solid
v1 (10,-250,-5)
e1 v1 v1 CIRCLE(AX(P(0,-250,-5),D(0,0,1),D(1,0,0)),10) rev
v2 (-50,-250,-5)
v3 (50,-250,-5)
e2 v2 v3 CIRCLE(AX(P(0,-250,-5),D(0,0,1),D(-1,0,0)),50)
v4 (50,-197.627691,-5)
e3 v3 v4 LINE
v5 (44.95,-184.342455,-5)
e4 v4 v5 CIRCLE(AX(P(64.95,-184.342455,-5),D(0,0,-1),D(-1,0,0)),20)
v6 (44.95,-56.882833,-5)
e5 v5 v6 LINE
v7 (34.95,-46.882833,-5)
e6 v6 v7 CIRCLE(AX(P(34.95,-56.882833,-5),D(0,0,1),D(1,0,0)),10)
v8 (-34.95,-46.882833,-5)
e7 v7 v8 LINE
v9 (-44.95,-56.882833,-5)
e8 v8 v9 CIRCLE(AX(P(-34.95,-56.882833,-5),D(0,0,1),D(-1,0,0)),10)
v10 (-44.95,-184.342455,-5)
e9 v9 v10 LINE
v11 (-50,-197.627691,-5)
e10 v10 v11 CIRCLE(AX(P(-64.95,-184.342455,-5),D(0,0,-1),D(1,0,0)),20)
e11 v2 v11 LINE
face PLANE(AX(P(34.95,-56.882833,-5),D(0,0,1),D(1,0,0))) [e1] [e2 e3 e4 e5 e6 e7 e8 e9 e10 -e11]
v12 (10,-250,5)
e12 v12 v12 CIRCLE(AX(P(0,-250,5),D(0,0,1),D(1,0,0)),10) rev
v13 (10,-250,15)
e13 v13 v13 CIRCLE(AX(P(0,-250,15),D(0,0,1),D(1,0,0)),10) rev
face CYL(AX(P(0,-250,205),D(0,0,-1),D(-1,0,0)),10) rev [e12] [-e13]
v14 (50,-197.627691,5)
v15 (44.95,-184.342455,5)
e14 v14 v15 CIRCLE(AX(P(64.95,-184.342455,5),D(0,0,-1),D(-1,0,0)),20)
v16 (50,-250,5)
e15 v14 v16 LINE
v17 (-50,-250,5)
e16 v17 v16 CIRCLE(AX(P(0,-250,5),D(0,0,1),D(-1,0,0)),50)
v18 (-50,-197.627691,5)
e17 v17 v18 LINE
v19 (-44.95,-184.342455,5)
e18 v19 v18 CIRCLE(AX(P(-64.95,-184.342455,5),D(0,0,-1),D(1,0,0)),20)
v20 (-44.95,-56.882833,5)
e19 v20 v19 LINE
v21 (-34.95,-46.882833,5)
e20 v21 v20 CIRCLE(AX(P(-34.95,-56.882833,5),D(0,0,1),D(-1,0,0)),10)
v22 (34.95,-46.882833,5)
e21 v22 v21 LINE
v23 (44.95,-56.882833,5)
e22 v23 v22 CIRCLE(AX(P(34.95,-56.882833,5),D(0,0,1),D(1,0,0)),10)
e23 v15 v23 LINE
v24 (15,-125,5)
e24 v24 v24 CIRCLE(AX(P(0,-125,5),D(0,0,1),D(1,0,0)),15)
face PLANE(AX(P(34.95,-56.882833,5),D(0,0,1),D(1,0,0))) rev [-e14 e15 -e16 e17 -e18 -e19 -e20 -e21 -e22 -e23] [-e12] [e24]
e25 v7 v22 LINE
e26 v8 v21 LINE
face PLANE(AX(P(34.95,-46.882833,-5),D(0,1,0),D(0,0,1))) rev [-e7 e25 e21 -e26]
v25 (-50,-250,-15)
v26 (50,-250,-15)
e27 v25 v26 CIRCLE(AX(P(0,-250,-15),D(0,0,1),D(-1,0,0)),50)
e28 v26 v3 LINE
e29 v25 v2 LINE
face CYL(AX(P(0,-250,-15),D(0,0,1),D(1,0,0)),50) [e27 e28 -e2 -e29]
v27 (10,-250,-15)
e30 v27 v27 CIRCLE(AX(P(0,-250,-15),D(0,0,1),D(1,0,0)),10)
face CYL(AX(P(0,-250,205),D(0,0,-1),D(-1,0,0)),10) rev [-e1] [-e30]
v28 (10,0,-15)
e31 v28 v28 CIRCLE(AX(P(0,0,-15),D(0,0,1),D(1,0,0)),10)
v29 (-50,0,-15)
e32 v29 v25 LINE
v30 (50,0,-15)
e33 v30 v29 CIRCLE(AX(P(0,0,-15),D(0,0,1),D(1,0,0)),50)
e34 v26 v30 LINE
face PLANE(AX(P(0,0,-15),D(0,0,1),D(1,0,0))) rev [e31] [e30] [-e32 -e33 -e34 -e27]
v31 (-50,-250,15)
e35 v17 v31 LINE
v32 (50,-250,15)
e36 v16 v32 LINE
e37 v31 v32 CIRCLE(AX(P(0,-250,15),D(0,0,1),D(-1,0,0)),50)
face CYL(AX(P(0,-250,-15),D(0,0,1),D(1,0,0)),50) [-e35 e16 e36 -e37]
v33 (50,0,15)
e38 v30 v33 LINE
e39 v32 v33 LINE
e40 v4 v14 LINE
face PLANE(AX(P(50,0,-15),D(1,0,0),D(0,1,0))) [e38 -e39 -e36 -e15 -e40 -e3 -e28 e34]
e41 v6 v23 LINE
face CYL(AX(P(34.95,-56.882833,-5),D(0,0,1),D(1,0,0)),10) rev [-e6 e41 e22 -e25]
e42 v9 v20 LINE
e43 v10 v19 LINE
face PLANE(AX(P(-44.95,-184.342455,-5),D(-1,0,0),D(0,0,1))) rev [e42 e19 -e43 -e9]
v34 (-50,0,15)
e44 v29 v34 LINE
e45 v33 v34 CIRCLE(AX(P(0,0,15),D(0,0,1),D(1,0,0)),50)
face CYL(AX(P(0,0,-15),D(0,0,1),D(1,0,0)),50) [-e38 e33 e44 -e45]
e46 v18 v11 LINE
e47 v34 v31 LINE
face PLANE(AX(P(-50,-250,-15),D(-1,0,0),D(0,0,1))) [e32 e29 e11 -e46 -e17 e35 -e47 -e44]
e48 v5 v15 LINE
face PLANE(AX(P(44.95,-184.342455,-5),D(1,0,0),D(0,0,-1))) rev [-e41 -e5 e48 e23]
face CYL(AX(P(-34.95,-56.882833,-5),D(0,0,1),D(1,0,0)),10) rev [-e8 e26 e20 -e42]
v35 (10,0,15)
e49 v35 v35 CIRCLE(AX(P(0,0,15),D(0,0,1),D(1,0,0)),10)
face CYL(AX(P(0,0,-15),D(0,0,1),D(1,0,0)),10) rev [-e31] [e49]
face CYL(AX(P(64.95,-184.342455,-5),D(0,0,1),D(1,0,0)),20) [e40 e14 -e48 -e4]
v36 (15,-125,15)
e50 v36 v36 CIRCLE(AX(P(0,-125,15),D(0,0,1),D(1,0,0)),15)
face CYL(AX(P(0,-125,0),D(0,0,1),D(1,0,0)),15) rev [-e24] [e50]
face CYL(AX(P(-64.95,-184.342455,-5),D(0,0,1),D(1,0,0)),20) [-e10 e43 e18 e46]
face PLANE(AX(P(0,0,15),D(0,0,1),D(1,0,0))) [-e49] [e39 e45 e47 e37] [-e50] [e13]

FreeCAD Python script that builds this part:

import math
import FreeCAD as App
import Part
import Sketcher
from FreeCAD import Vector
Q = App.Units.Quantity

doc = App.newDocument("Part")
body = doc.addObject("PartDesign::Body", "Body")

sketch1 = body.newObject("Sketcher::SketchObject", "Sketch")
sketch1.AttachmentSupport = (doc.getObject("XY_Plane"), [""])
sketch1.MapMode = "FlatFace"
sketch1.addGeometry([
    Part.LineSegment(Vector(50, -250, 0), Vector(50, 0, 0)),
    Part.ArcOfCircle(Part.Circle(Vector(0, 0, 0), Vector(0, 0, 1), 50), math.radians(0), math.radians(180)),
    Part.LineSegment(Vector(-50, 0, 0), Vector(-50, -250, 0)),
    Part.ArcOfCircle(Part.Circle(Vector(0, -250, 0), Vector(0, 0, 1), 50), math.radians(180), math.radians(360)),
], False)
sketch1.addConstraint([
    Sketcher.Constraint("Tangent", 0, 2, 1, 1),
    Sketcher.Constraint("Tangent", 1, 2, 2, 1),
    Sketcher.Constraint("Tangent", 2, 2, 3, 1),
    Sketcher.Constraint("Tangent", 3, 2, 0, 1),
    Sketcher.Constraint("Vertical", 0),
    Sketcher.Constraint("Vertical", 2),
    Sketcher.Constraint("Coincident", 1, 3, -1, 1),
    Sketcher.Constraint("Radius", 1, Q("50 mm")),
    Sketcher.Constraint("DistanceY", 0, 1, 0, 2, Q("250 mm")),
])
pad1 = body.newObject("PartDesign::Pad", "Pad")
pad1.Profile = sketch1
pad1.Length = 30
pad1.Midplane = True

sketch2 = body.newObject("Sketcher::SketchObject", "Sketch001")
sketch2.AttachmentSupport = (doc.getObject("XY_Plane"), [""])
sketch2.MapMode = "FlatFace"
sketch2.addGeometry([
    Part.LineSegment(Vector(45, -184.3, 0), Vector(45, -56.9, 0)),
    Part.ArcOfCircle(Part.Circle(Vector(35, -56.9, 0), Vector(0, 0, 1), 10), math.radians(0), math.radians(90)),
    Part.LineSegment(Vector(35, -46.9, 0), Vector(-35, -46.9, 0)),
    Part.ArcOfCircle(Part.Circle(Vector(-35, -56.9, 0), Vector(0, 0, 1), 10), math.radians(90), math.radians(180)),
    Part.LineSegment(Vector(-45, -56.9, 0), Vector(-45, -184.3, 0)),
    Part.ArcOfCircle(Part.Circle(Vector(-64.9, -184.3, 0), Vector(0, 0, 1), 20), math.radians(-57), math.radians(0)),
    Part.LineSegment(Vector(-54.1, -201.2, 0), Vector(-50, -198.5, 0)),
    Part.LineSegment(Vector(-50, -198.5, 0), Vector(-50, -250, 0)),
    Part.ArcOfCircle(Part.Circle(Vector(0, -250, 0), Vector(0, 0, 1), 50), math.radians(180), math.radians(360)),
    Part.LineSegment(Vector(50, -250, 0), Vector(50, -198.5, 0)),
    Part.LineSegment(Vector(50, -198.5, 0), Vector(54.1, -201.2, 0)),
    Part.ArcOfCircle(Part.Circle(Vector(64.9, -184.3, 0), Vector(0, 0, 1), 20), math.radians(180), math.radians(237)),
], False)
sketch2.addConstraint([
    Sketcher.Constraint("Tangent", 0, 2, 1, 1),
    Sketcher.Constraint("Tangent", 1, 2, 2, 1),
    Sketcher.Constraint("Tangent", 2, 2, 3, 1),
    Sketcher.Constraint("Tangent", 3, 2, 4, 1),
    Sketcher.Constraint("Tangent", 4, 2, 5, 2),
    Sketcher.Constraint("Tangent", 5, 1, 6, 1),
    Sketcher.Constraint("Coincident", 6, 2, 7, 1),
    Sketcher.Constraint("Tangent", 7, 2, 8, 1),
    Sketcher.Constraint("Tangent", 8, 2, 9, 1),
    Sketcher.Constraint("Coincident", 9, 2, 10, 1),
    Sketcher.Constraint("Tangent", 10, 2, 11, 2),
    Sketcher.Constraint("Tangent", 11, 1, 0, 1),
    Sketcher.Constraint("Vertical", 0),
    Sketcher.Constraint("Horizontal", 2),
    Sketcher.Constraint("Vertical", 4),
    Sketcher.Constraint("Vertical", 7),
    Sketcher.Constraint("Vertical", 9),
    Sketcher.Constraint("Equal", 1, 3),
    Sketcher.Constraint("Equal", 5, 11),
    Sketcher.Constraint("Symmetric", 5, 3, 11, 3, -2),
    Sketcher.Constraint("Symmetric", 6, 2, 9, 2, -2),
    Sketcher.Constraint("Radius", 1, Q("10 mm")),
    Sketcher.Constraint("Radius", 5, Q("20 mm")),
    Sketcher.Constraint("Radius", 8, Q("50 mm")),
    Sketcher.Constraint("DistanceX", 2, 2, 2, 1, Q("69.9 mm")),
    Sketcher.Constraint("DistanceY", 8, 3, -1, 1, Q("250 mm")),
    Sketcher.Constraint("DistanceY", 7, 2, 7, 1, Q("51.499049 mm")),
    Sketcher.Constraint("DistanceY", 0, 1, 0, 2, Q("127.459622 mm")),
    Sketcher.Constraint("DistanceY", 5, 1, 4, 2, Q("16.81066 mm")),
])
pocket1 = body.newObject("PartDesign::Pocket", "Pocket")
pocket1.Profile = sketch2
pocket1.Length = 10
pocket1.Midplane = True

sketch3 = body.newObject("Sketcher::SketchObject", "Sketch002")
sketch3.AttachmentSupport = (doc.getObject("XY_Plane"), [""])
sketch3.MapMode = "FlatFace"
sketch3.AttachmentOffset = App.Placement(Vector(0, 0, 15), App.Rotation())
sketch3.addGeometry(Part.Circle(Vector(0, 0, 0), Vector(0, 0, 1), 10), False)
sketch3.addConstraint([
    Sketcher.Constraint("Coincident", 0, 3, -1, 1),
    Sketcher.Constraint("Diameter", 0, Q("20 mm")),
])
pocket2 = body.newObject("PartDesign::Pocket", "Pocket001")
pocket2.Profile = sketch3
pocket2.Type = "ThroughAll"

sketch4 = body.newObject("Sketcher::SketchObject", "Sketch003")
sketch4.AttachmentSupport = (doc.getObject("XY_Plane"), [""])
sketch4.MapMode = "FlatFace"
sketch4.AttachmentOffset = App.Placement(Vector(0, 0, 15), App.Rotation())
sketch4.addGeometry(Part.Circle(Vector(0, -125, 0), Vector(0, 0, 1), 15), False)
sketch4.addConstraint([
    Sketcher.Constraint("PointOnObject", 0, 3, -2),
    Sketcher.Constraint("Diameter", 0, Q("30 mm")),
    Sketcher.Constraint("DistanceY", 0, 3, -1, 1, Q("125 mm")),
])
pocket3 = body.newObject("PartDesign::Pocket", "Pocket002")
pocket3.Profile = sketch4
pocket3.Length = 15

sketch5 = body.newObject("Sketcher::SketchObject", "Sketch004")
sketch5.AttachmentSupport = (doc.getObject("XY_Plane"), [""])
sketch5.MapMode = "FlatFace"
sketch5.AttachmentOffset = App.Placement(Vector(0, 0, -5), App.Rotation())
sketch5.addGeometry(Part.Circle(Vector(0, -250, 0), Vector(0, 0, 1), 10), False)
sketch5.addConstraint([
    Sketcher.Constraint("PointOnObject", 0, 3, -2),
    Sketcher.Constraint("Diameter", 0, Q("20 mm")),
    Sketcher.Constraint("DistanceY", 0, 3, -1, 1, Q("250 mm")),
])
pocket4 = body.newObject("PartDesign::Pocket", "Pocket003")
pocket4.Profile = sketch5
pocket4.Type = "ThroughAll"
pocket4.Midplane = True

doc.recompute()
